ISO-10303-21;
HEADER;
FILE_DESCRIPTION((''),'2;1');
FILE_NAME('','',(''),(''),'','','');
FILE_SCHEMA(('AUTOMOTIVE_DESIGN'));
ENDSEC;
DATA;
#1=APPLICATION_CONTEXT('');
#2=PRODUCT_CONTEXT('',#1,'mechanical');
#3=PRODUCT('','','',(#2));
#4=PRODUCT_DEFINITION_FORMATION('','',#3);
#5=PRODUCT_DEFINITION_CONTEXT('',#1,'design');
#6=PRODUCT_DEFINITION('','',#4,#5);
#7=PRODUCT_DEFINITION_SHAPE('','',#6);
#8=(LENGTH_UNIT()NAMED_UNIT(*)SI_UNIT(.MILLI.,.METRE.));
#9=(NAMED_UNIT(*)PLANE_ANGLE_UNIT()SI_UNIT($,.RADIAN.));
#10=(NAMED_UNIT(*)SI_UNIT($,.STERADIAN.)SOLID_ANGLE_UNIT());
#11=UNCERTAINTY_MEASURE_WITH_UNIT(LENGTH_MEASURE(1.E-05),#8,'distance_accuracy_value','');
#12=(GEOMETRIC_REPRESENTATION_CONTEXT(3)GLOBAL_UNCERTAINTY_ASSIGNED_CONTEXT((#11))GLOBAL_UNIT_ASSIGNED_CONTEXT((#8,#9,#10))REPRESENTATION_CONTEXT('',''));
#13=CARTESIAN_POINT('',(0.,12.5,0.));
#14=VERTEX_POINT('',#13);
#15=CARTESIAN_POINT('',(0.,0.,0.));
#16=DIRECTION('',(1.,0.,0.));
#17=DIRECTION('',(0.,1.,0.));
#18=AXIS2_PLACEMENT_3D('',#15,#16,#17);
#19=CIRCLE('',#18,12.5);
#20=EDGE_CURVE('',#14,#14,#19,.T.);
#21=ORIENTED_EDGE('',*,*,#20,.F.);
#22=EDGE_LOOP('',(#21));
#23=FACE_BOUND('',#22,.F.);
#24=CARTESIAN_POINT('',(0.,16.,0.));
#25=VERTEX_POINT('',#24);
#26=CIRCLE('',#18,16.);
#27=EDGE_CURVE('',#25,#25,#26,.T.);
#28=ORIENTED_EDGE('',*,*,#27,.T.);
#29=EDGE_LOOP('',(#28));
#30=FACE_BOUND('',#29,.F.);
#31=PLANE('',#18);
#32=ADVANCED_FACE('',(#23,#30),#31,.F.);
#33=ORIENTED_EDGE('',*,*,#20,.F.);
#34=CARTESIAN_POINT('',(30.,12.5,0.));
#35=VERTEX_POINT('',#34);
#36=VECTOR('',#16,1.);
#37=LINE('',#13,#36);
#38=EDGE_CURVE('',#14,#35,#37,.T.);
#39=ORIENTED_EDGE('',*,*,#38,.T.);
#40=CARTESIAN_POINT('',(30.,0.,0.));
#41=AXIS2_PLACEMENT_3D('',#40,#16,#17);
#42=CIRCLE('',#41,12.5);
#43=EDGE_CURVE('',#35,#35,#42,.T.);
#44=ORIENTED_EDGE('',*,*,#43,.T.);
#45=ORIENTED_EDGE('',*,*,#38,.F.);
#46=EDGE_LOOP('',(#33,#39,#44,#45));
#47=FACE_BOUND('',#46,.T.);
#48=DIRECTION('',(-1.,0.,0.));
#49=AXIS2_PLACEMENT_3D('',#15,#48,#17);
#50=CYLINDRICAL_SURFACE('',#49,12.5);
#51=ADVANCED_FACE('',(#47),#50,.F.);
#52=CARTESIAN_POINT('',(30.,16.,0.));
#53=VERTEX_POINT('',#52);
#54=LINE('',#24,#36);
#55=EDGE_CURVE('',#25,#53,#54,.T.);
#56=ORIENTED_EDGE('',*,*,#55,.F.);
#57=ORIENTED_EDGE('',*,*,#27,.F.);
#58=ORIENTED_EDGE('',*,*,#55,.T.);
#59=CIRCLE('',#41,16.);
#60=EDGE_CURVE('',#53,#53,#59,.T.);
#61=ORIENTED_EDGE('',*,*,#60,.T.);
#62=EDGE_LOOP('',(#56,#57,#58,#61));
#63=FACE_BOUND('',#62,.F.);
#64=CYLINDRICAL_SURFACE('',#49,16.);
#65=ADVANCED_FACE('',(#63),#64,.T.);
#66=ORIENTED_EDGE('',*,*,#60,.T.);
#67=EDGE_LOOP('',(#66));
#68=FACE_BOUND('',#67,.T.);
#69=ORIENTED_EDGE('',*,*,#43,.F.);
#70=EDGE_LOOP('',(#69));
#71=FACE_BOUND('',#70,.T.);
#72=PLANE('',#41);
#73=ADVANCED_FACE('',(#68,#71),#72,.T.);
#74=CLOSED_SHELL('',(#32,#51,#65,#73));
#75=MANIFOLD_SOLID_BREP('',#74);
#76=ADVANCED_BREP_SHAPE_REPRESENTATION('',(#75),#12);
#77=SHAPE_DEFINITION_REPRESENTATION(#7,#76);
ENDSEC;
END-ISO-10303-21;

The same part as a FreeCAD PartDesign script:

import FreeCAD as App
import Part
import Sketcher

doc = App.newDocument("Part")
body = doc.addObject("PartDesign::Body", "Body")

# Sketch on YZ plane
sketch1 = body.newObject("Sketcher::SketchObject", "Sketch")
sketch1.AttachmentSupport = (doc.getObject("YZ_Plane"), [""])
sketch1.MapMode = "FlatFace"
sketch1.addGeometry(Part.Circle(App.Vector(0, 0, 0), App.Vector(0, 0, 1), 16), False)
sketch1.addGeometry(Part.Circle(App.Vector(0, 0, 0), App.Vector(0, 0, 1), 12), False)
sketch1.addConstraint(Sketcher.Constraint("Coincident", 0, 3, -1, 1))
sketch1.addConstraint(Sketcher.Constraint("Coincident", 1, 3, -1, 1))
sketch1.addConstraint(Sketcher.Constraint("Diameter", 0, 32.0))
sketch1.addConstraint(Sketcher.Constraint("Diameter", 1, 25.0))
pad1 = body.newObject("PartDesign::Pad", "Pad")
pad1.Profile = sketch1
pad1.Length = 30

doc.recompute()
